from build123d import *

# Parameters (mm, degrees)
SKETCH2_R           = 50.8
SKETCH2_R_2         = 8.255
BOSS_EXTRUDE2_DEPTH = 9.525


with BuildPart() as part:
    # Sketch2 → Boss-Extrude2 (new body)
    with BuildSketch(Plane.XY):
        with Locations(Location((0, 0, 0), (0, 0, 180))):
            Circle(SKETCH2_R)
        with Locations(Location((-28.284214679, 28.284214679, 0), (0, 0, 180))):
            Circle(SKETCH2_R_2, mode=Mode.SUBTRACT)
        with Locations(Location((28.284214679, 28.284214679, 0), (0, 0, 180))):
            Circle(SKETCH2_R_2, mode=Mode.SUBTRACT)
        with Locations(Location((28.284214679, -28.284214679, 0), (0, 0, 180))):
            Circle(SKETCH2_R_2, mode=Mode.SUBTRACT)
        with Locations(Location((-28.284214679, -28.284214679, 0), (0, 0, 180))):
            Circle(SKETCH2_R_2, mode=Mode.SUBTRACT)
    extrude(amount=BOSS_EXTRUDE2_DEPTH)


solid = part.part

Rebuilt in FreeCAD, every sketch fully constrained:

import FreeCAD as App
import Part
import Sketcher
Q = App.Units.Quantity

doc = App.newDocument("Part")
params = doc.addObject("Spreadsheet::Sheet", "Params")
for row, (alias, value) in enumerate([
    ("sketch1_diameter", "4 in"),
    ("sketch1_diameter2", "0.65 in"),
    ("pad1_length", "0.375 in"),
], start=1):
    params.set(f"A{row}", alias)
    params.set(f"B{row}", "=" + value)
    params.setAlias(f"B{row}", alias)

body = doc.addObject("PartDesign::Body", "Body")

# Sketch on XY plane
sketch1 = doc.addObject("Sketcher::SketchObject", "Sketch")
body.addObject(sketch1)
sketch1.AttachmentSupport = (doc.XY_Plane, [""])
sketch1.MapMode = "FlatFace"
sketch1.addGeometry([
    Part.Circle(App.Vector(0, 0, 0), App.Vector(0, 0, 1), 51),  # 0
    Part.Circle(App.Vector(28, 28, 0), App.Vector(0, 0, 1), 8),  # 1
    Part.Circle(App.Vector(-28, 28, 0), App.Vector(0, 0, 1), 8),  # 2
    Part.Circle(App.Vector(28, -28, 0), App.Vector(0, 0, 1), 8),  # 3
    Part.Circle(App.Vector(-28, -28, 0), App.Vector(0, 0, 1), 8),  # 4
], False)
sketch1.addConstraint([
    Sketcher.Constraint("Coincident", 0, 3, -1, 1),
    Sketcher.Constraint("Equal", 1, 2),
    Sketcher.Constraint("Equal", 2, 3),
    Sketcher.Constraint("Equal", 3, 4),
    Sketcher.Constraint("Symmetric", 2, 3, 3, 3, -1, 1),
    Sketcher.Constraint("Symmetric", 1, 3, 4, 3, -1, 1),
    Sketcher.Constraint("Symmetric", 1, 3, 2, 3, -2),
    Sketcher.Constraint("Diameter", 0, Q("4 in")),
    Sketcher.Constraint("Diameter", 1, Q("0.65 in")),
    Sketcher.Constraint("DistanceX", 2, 3, 1, 3, 56.568429),
    Sketcher.Constraint("DistanceY", 3, 3, 1, 3, 56.568429),
])
sketch1.setExpression("Constraints[7]", "Params.sketch1_diameter")
sketch1.setExpression("Constraints[8]", "Params.sketch1_diameter2")
pad1 = doc.addObject("PartDesign::Pad", "Pad")
body.addObject(pad1)
pad1.Profile = sketch1
pad1.setExpression("Length", "Params.pad1_length")

doc.recompute()
